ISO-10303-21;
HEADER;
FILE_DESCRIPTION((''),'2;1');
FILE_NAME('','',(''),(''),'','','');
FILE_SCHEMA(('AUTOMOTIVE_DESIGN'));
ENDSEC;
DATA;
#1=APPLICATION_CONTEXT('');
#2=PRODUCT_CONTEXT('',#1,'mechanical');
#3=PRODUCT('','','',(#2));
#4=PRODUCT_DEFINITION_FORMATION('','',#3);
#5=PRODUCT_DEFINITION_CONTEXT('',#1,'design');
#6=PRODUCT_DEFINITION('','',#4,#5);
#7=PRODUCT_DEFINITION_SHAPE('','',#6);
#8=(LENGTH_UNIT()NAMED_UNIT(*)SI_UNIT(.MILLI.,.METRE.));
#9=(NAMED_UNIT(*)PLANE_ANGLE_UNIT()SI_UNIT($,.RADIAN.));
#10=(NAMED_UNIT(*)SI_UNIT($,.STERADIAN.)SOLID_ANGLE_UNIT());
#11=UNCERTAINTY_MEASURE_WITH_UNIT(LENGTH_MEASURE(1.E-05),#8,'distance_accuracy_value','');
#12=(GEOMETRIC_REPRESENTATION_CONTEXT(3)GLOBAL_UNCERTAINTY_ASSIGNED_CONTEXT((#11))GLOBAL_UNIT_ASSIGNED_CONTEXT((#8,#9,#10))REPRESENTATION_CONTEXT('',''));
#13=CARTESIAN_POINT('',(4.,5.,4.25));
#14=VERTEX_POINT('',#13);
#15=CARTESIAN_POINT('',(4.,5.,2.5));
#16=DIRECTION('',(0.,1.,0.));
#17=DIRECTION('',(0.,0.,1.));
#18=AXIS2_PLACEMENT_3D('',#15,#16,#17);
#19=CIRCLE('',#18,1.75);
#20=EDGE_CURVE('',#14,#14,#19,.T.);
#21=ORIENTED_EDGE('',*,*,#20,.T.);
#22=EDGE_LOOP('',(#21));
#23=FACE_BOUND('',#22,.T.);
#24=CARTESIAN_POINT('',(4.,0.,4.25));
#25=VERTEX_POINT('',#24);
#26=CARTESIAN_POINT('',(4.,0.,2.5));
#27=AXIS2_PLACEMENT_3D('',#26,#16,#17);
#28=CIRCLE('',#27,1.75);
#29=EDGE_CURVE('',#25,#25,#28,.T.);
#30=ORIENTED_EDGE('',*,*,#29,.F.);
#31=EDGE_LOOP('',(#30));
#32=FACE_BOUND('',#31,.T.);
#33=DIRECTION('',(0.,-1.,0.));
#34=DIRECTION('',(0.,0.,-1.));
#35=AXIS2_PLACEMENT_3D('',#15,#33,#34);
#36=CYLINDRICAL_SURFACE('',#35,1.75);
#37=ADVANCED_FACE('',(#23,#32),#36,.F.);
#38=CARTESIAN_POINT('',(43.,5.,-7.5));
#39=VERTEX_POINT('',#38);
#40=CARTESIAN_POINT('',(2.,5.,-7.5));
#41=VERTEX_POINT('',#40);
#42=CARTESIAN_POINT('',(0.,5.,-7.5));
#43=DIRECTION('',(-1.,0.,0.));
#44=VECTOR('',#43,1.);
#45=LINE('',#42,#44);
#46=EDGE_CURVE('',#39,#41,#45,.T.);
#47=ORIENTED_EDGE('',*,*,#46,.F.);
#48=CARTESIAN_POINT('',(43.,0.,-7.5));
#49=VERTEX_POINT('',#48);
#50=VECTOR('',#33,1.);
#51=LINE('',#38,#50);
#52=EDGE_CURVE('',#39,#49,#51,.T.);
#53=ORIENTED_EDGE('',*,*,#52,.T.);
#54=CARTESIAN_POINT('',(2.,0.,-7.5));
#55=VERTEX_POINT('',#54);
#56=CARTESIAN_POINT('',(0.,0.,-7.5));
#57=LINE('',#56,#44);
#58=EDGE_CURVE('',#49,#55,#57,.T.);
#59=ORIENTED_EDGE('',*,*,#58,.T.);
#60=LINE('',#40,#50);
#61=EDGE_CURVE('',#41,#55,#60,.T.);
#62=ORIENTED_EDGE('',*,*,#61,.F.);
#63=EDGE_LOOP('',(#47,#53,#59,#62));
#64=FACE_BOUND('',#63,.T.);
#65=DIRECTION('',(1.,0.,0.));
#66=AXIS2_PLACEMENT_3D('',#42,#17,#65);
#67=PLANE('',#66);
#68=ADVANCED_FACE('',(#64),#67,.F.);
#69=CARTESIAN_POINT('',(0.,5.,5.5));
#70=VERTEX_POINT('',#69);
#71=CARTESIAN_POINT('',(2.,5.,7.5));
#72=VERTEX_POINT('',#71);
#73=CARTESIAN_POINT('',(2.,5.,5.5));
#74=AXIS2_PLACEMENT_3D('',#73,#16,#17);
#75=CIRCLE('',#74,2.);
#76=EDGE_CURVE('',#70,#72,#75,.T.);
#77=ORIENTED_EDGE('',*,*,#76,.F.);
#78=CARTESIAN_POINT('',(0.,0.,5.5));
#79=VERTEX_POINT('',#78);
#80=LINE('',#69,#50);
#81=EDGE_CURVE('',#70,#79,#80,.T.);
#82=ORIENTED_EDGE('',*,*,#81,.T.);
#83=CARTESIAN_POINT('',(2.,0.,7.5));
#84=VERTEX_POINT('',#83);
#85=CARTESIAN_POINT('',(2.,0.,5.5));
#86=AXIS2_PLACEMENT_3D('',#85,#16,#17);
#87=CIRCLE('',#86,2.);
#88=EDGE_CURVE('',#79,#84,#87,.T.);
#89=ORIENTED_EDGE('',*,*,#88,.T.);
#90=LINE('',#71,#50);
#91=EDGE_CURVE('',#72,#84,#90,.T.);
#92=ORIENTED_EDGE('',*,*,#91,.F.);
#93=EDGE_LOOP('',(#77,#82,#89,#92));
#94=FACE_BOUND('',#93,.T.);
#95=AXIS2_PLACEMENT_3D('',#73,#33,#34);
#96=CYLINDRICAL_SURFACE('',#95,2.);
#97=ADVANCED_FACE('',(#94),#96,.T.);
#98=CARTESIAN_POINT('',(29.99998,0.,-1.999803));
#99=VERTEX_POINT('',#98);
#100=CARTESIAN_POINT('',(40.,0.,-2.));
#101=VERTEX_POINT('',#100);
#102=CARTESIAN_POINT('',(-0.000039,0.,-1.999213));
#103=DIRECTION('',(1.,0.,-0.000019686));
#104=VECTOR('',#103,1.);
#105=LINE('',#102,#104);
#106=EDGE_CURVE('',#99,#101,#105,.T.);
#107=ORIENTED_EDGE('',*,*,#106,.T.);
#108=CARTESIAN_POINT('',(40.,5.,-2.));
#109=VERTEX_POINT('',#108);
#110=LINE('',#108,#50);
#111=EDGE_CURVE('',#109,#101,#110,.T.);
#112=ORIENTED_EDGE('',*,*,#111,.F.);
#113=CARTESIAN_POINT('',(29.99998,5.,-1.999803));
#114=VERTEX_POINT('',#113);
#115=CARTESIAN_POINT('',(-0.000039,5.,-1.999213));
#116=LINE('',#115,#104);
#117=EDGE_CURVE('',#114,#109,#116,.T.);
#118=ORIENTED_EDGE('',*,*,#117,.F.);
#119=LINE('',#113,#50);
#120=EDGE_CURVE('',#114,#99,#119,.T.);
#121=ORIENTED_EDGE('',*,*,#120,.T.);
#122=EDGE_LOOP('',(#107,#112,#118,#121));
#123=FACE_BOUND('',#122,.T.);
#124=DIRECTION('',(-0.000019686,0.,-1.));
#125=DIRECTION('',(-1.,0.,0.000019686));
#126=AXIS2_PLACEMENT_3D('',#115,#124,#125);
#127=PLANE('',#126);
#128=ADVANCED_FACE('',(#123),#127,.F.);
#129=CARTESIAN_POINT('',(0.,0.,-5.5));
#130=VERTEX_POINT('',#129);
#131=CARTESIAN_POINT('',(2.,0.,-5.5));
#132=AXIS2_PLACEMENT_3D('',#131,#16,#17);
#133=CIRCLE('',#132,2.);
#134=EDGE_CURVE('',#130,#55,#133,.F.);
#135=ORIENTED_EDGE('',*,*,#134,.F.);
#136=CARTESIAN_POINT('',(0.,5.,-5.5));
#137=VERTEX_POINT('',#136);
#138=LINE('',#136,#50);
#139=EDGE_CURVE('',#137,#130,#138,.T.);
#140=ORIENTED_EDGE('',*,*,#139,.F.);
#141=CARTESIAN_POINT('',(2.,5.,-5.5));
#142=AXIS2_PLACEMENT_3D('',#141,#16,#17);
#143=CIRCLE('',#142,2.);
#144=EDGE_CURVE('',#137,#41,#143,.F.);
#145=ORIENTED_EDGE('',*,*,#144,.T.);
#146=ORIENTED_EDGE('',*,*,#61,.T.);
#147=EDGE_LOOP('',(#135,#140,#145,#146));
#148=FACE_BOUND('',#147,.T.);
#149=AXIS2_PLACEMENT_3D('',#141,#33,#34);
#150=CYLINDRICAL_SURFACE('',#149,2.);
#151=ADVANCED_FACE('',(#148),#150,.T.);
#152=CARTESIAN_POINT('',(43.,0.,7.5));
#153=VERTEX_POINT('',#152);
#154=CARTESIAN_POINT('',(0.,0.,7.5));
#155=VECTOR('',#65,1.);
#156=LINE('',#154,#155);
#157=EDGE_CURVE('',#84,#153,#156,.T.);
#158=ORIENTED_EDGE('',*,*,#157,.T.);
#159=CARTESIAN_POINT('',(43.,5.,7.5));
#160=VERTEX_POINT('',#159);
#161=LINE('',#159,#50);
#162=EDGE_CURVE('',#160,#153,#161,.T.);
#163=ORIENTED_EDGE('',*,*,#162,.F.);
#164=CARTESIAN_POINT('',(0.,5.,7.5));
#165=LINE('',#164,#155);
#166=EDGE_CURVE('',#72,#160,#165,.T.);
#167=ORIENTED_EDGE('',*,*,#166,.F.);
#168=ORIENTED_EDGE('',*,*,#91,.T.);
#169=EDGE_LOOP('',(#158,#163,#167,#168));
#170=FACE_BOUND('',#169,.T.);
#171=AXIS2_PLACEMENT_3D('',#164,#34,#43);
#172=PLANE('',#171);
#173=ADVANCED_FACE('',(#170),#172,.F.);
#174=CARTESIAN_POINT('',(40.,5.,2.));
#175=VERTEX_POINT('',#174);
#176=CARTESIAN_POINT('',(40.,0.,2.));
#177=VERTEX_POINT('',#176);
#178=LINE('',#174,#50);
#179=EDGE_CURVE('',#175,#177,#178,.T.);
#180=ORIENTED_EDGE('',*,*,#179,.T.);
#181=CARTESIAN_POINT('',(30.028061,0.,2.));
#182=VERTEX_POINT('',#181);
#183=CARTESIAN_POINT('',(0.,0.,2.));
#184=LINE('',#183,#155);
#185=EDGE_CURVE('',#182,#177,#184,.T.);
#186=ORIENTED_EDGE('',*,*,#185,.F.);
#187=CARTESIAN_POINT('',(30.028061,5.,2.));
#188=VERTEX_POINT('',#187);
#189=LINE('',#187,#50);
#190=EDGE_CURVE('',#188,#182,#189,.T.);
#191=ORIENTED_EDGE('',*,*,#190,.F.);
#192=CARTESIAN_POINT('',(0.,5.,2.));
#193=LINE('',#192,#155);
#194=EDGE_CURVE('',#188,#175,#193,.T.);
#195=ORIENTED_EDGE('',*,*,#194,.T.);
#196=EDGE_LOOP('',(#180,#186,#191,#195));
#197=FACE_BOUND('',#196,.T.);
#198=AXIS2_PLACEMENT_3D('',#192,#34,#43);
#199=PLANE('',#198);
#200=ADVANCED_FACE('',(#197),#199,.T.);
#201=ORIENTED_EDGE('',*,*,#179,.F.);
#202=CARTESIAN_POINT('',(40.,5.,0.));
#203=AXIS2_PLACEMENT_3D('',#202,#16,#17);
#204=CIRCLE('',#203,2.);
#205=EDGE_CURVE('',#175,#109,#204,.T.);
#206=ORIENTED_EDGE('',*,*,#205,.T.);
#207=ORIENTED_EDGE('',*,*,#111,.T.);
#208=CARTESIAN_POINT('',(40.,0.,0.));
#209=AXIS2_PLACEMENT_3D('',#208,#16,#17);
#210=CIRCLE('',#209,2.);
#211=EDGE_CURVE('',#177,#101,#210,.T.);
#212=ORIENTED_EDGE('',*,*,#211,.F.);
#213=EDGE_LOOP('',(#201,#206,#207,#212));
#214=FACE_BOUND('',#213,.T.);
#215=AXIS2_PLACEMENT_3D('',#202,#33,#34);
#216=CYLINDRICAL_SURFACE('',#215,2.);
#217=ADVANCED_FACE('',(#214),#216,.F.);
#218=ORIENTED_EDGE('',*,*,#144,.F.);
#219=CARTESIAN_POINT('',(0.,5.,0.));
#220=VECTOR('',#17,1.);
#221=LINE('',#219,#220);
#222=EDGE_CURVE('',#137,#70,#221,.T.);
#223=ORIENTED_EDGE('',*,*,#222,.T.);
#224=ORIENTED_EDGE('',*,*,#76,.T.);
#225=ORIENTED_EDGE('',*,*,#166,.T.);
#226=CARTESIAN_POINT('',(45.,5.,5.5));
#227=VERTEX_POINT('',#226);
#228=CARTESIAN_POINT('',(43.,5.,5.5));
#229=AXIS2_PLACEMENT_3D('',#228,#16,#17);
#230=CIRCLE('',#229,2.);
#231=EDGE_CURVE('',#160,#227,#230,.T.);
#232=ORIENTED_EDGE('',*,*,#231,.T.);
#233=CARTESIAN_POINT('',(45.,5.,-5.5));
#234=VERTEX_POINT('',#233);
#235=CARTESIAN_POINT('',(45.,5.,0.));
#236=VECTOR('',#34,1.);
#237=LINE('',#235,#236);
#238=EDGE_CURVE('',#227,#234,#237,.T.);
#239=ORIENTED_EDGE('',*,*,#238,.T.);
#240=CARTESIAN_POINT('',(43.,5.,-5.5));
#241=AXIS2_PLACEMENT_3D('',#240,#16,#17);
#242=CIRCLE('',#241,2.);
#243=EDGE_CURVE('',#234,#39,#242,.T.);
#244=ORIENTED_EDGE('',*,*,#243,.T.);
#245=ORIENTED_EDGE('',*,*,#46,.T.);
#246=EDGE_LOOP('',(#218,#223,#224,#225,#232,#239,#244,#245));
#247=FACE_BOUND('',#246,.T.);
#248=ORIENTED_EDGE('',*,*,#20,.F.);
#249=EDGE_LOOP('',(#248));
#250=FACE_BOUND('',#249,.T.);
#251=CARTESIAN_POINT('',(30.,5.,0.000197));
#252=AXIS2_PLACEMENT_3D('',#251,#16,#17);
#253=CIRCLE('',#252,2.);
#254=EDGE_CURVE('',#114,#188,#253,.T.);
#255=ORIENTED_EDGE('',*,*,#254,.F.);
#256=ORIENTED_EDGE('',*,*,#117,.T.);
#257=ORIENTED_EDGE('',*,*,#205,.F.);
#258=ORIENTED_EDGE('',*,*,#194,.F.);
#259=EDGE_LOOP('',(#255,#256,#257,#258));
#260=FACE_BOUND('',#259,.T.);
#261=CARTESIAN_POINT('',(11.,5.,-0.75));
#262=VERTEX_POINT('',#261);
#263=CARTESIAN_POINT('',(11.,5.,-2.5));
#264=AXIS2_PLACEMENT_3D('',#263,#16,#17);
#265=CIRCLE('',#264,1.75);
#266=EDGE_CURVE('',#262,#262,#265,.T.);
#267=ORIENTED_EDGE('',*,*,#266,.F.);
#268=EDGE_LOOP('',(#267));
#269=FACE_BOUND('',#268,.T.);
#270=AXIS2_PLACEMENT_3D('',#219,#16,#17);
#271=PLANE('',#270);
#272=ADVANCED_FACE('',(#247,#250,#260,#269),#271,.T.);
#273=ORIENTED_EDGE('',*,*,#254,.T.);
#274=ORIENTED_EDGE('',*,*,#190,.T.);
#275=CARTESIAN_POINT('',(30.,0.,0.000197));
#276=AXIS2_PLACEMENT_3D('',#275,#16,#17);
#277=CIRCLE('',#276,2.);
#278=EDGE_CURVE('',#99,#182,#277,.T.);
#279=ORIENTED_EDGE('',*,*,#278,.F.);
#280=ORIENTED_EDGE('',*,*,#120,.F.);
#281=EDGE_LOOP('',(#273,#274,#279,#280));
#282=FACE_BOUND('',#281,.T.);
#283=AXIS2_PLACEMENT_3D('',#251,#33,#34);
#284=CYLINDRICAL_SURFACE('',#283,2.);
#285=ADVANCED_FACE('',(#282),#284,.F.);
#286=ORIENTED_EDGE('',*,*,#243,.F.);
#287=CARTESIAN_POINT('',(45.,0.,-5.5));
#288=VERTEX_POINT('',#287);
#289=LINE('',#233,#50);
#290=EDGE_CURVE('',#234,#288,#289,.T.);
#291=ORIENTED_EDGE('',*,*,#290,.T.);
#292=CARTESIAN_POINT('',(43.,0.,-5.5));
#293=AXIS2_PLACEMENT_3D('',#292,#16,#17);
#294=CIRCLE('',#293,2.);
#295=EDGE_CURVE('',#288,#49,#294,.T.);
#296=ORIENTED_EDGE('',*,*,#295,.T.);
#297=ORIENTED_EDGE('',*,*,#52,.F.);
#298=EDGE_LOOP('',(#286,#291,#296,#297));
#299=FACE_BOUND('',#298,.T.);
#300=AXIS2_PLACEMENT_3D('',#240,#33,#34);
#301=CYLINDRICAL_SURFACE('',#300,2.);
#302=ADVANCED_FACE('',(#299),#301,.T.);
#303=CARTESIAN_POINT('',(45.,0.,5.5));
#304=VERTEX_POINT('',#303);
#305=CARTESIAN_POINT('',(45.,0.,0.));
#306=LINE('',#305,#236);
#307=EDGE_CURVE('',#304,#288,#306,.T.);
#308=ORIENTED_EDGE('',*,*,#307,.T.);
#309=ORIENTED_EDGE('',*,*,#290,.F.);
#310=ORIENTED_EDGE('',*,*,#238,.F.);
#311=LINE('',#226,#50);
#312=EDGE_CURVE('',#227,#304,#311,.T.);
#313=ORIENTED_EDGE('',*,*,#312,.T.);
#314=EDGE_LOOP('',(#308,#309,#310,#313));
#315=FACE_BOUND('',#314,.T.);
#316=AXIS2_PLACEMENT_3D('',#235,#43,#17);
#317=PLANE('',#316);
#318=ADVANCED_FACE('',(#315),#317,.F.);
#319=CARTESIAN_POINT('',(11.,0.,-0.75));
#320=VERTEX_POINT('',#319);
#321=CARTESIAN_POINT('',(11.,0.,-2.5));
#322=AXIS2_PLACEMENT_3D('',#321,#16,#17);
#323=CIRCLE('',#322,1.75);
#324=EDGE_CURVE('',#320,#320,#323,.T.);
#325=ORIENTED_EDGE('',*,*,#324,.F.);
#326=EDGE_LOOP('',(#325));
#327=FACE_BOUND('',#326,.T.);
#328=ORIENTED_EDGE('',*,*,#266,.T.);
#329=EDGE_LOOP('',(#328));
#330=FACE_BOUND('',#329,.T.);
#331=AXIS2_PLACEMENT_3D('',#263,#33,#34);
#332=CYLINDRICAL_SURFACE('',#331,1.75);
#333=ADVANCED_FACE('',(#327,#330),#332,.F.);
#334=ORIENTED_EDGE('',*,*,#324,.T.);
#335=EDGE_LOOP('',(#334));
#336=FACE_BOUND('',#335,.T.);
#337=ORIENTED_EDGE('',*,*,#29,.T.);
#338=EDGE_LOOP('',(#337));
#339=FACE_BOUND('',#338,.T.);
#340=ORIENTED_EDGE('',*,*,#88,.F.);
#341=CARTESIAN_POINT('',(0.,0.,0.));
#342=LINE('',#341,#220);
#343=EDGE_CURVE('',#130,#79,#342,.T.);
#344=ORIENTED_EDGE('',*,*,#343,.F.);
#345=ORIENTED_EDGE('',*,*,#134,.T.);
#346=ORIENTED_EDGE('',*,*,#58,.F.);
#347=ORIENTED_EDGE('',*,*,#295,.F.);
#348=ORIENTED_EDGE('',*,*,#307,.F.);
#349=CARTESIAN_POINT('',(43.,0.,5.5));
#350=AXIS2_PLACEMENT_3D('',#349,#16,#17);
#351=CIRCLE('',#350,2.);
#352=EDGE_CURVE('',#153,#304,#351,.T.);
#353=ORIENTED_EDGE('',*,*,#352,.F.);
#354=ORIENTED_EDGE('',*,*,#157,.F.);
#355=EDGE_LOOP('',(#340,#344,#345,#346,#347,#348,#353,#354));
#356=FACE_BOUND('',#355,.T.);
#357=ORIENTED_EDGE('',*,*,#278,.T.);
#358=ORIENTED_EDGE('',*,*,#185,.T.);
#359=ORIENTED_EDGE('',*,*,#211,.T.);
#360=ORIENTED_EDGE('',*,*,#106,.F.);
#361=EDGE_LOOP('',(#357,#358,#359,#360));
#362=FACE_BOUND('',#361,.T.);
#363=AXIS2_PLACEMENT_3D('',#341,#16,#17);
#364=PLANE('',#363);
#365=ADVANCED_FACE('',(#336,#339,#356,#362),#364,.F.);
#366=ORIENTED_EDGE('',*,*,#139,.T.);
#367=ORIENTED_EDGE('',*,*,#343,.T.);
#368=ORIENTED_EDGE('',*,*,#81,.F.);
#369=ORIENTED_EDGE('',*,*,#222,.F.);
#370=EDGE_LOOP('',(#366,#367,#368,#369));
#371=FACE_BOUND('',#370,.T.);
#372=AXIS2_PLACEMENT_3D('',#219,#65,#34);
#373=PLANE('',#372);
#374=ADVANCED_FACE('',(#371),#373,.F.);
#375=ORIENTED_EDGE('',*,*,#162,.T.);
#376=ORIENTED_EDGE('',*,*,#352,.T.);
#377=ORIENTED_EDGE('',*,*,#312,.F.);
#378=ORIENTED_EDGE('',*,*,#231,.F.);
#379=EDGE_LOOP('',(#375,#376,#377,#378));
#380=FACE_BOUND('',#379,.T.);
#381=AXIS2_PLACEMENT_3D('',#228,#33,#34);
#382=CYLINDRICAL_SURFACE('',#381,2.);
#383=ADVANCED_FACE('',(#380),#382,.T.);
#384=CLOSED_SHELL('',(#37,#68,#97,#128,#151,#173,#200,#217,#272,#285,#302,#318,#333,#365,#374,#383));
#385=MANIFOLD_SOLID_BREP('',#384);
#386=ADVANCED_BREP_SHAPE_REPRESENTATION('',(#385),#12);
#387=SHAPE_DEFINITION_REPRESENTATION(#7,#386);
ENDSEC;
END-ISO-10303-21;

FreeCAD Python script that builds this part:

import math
import FreeCAD as App
import Part
import Sketcher
from FreeCAD import Vector
Q = App.Units.Quantity

doc = App.newDocument("Part")
params = doc.addObject("Spreadsheet::Sheet", "Params")
for row, (alias, value) in enumerate([
    ("sketch1_radius", "2 mm"),
    ("sketch1_diameter", "3.5 mm"),
    ("sketch1_width", "41 mm"),
    ("sketch1_height", "11 mm"),
    ("pad1_length", "5 mm"),
], start=1):
    params.set(f"A{row}", alias)
    params.set(f"B{row}", "=" + value)
    params.setAlias(f"B{row}", alias)

body = doc.addObject("PartDesign::Body", "Body")

# Sketch on XZ plane
sketch1 = body.newObject("Sketcher::SketchObject", "Sketch")
sketch1.AttachmentSupport = (doc.getObject("XZ_Plane"), [""])
sketch1.MapMode = "FlatFace"
sketch1.addGeometry(Part.LineSegment(Vector(0, -5.5, 0), Vector(0, 5.5, 0)), False)
sketch1.addGeometry(Part.ArcOfCircle(Part.Circle(Vector(2, 5.5, 0), Vector(0, 0, 1), 2), math.radians(90), math.radians(180)), False)
sketch1.addGeometry(Part.LineSegment(Vector(2, 7.5, 0), Vector(43, 7.5, 0)), False)
sketch1.addGeometry(Part.ArcOfCircle(Part.Circle(Vector(43, 5.5, 0), Vector(0, 0, 1), 2), math.radians(0), math.radians(90)), False)
sketch1.addGeometry(Part.LineSegment(Vector(45, 5.5, 0), Vector(45, -5.5, 0)), False)
sketch1.addGeometry(Part.ArcOfCircle(Part.Circle(Vector(43, -5.5, 0), Vector(0, 0, 1), 2), math.radians(-90), math.radians(0)), False)
sketch1.addGeometry(Part.LineSegment(Vector(43, -7.5, 0), Vector(2, -7.5, 0)), False)
sketch1.addGeometry(Part.ArcOfCircle(Part.Circle(Vector(2, -5.5, 0), Vector(0, 0, 1), 2), math.radians(-180), math.radians(-90)), False)
sketch1.addGeometry(Part.Circle(Vector(4, 2.5, 0), Vector(0, 0, 1), 1.75), False)
sketch1.addGeometry(Part.LineSegment(Vector(40, 2, 0), Vector(30.028061, 2, 0)), False)
sketch1.addGeometry(Part.ArcOfCircle(Part.Circle(Vector(30, 0.000197, 0), Vector(0, 0, 1), 2), math.radians(89.196087), math.radians(269.999435)), False)
sketch1.addGeometry(Part.LineSegment(Vector(29.99998, -1.999803, 0), Vector(40, -2, 0)), False)
sketch1.addGeometry(Part.ArcOfCircle(Part.Circle(Vector(40, 0, 0), Vector(0, 0, 1), 2), math.radians(-90), math.radians(90)), False)
sketch1.addGeometry(Part.Circle(Vector(11, -2.5, 0), Vector(0, 0, 1), 1.75), False)
sketch1.addConstraint(Sketcher.Constraint("Tangent", 0, 2, 1, 2))
sketch1.addConstraint(Sketcher.Constraint("Tangent", 1, 1, 2, 1))
sketch1.addConstraint(Sketcher.Constraint("Tangent", 2, 2, 3, 2))
sketch1.addConstraint(Sketcher.Constraint("Tangent", 3, 1, 4, 1))
sketch1.addConstraint(Sketcher.Constraint("Tangent", 4, 2, 5, 2))
sketch1.addConstraint(Sketcher.Constraint("Tangent", 5, 1, 6, 1))
sketch1.addConstraint(Sketcher.Constraint("Tangent", 6, 2, 7, 2))
sketch1.addConstraint(Sketcher.Constraint("Tangent", 7, 1, 0, 1))
sketch1.addConstraint(Sketcher.Constraint("Coincident", 9, 2, 10, 1))
sketch1.addConstraint(Sketcher.Constraint("Coincident", 10, 2, 11, 1))
sketch1.addConstraint(Sketcher.Constraint("Coincident", 11, 2, 12, 1))
sketch1.addConstraint(Sketcher.Constraint("Tangent", 12, 2, 9, 1))
sketch1.addConstraint(Sketcher.Constraint("Vertical", 0))
sketch1.addConstraint(Sketcher.Constraint("Horizontal", 2))
sketch1.addConstraint(Sketcher.Constraint("Vertical", 4))
sketch1.addConstraint(Sketcher.Constraint("Horizontal", 6))
sketch1.addConstraint(Sketcher.Constraint("Horizontal", 9))
sketch1.addConstraint(Sketcher.Constraint("Equal", 1, 3))
sketch1.addConstraint(Sketcher.Constraint("Equal", 3, 5))
sketch1.addConstraint(Sketcher.Constraint("Equal", 5, 7))
sketch1.addConstraint(Sketcher.Constraint("Equal", 7, 10))
sketch1.addConstraint(Sketcher.Constraint("Equal", 10, 12))
sketch1.addConstraint(Sketcher.Constraint("Equal", 8, 13))
sketch1.addConstraint(Sketcher.Constraint("Symmetric", 0, 2, 7, 1, -1, 1))
sketch1.addConstraint(Sketcher.Constraint("Symmetric", 11, 2, 12, 2, -1))
sketch1.addConstraint(Sketcher.Constraint("Radius", 1, Q("2 mm")))
sketch1.addConstraint(Sketcher.Constraint("Diameter", 8, Q("3.5 mm")))
sketch1.addConstraint(Sketcher.Constraint("DistanceX", 2, 1, 2, 2, Q("41 mm")))
sketch1.addConstraint(Sketcher.Constraint("DistanceY", 0, 1, 0, 2, Q("11 mm")))
sketch1.addConstraint(Sketcher.Constraint("DistanceX", -1, 1, 8, 3, Q("4 mm")))
sketch1.addConstraint(Sketcher.Constraint("DistanceX", -1, 1, 10, 3, Q("30 mm")))
sketch1.addConstraint(Sketcher.Constraint("DistanceX", -1, 1, 12, 3, Q("40 mm")))
sketch1.addConstraint(Sketcher.Constraint("DistanceX", -1, 1, 13, 3, Q("11 mm")))
sketch1.addConstraint(Sketcher.Constraint("DistanceY", 8, 3, 1, 3, Q("3 mm")))
sketch1.addConstraint(Sketcher.Constraint("DistanceY", 13, 3, 8, 3, Q("5 mm")))
sketch1.addConstraint(Sketcher.Constraint("DistanceX", 9, 2, 9, 1, Q("9.971939 mm")))
sketch1.addConstraint(Sketcher.Constraint("Distance", 11, Q("10.00002 mm")))
sketch1.setExpression("Constraints[25]", "Params.sketch1_radius")
sketch1.setExpression("Constraints[26]", "Params.sketch1_diameter")
sketch1.setExpression("Constraints[27]", "Params.sketch1_width")
sketch1.setExpression("Constraints[28]", "Params.sketch1_height")
pad1 = body.newObject("PartDesign::Pad", "Pad")
pad1.Profile = sketch1
pad1.setExpression("Length", "Params.pad1_length")
pad1.Reversed = True

doc.recompute()
